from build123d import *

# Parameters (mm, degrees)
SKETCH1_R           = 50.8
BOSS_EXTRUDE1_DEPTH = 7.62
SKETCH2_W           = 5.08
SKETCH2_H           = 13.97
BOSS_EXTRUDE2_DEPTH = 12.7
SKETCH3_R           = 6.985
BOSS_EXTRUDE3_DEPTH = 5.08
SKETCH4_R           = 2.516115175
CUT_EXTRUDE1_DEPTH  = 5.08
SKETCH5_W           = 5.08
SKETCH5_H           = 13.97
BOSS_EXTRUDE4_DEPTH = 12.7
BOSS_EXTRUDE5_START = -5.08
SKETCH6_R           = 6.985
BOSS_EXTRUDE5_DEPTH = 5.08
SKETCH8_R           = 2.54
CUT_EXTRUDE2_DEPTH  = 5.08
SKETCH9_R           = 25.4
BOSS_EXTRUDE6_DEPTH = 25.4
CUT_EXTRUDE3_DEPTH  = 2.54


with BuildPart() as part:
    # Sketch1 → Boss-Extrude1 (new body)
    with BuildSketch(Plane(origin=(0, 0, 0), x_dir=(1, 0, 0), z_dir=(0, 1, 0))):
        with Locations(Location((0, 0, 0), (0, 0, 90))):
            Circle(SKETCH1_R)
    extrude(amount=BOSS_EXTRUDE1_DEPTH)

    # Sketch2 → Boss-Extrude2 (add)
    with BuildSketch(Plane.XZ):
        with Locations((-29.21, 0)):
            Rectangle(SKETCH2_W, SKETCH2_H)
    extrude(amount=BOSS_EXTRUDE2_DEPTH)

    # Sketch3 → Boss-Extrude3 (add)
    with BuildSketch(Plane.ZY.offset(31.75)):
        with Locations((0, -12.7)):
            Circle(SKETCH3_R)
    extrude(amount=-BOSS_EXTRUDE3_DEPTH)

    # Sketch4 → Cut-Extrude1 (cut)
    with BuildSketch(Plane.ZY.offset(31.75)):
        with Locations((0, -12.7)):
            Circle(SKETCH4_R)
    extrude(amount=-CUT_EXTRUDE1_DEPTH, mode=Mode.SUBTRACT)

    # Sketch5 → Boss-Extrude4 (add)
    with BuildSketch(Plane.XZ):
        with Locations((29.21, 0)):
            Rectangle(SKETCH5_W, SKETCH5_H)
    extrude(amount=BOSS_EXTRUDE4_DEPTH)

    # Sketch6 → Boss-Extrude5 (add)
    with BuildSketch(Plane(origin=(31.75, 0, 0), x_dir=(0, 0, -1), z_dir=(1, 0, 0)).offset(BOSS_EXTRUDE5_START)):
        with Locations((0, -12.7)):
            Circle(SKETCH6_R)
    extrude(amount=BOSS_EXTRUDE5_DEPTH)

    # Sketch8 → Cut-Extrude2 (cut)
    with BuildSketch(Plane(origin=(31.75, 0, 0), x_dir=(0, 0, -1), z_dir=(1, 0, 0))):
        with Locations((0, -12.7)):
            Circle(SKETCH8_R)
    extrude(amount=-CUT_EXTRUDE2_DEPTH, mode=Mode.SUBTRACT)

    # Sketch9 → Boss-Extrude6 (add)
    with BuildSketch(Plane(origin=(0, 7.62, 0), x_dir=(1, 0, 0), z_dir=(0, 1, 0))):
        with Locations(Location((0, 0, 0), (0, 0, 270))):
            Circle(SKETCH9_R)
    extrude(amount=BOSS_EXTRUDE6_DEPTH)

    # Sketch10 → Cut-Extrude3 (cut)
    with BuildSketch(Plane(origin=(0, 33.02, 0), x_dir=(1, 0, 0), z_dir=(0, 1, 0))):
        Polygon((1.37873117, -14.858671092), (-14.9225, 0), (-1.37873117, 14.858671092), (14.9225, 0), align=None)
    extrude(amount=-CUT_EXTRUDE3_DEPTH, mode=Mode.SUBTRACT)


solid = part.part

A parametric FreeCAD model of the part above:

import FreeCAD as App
import Part
import Sketcher
from FreeCAD import Vector
Q = App.Units.Quantity


def add_polygon(sketch, points):
    """Adds a closed chain of lines whose ends are joined by coincident constraints."""
    first, n = sketch.GeometryCount, len(points)
    for a, b in zip(points, points[1:] + points[:1]):
        sketch.addGeometry(Part.LineSegment(App.Vector(*a, 0), App.Vector(*b, 0)), False)
    for i in range(n):
        sketch.addConstraint(Sketcher.Constraint("Coincident", first + i, 2, first + (i + 1) % n, 1))

doc = App.newDocument("Part")
body = doc.addObject("PartDesign::Body", "Body")

sketch1 = body.newObject("Sketcher::SketchObject", "Sketch")
sketch1.AttachmentSupport = (doc.getObject("XZ_Plane"), [""])
sketch1.MapMode = "FlatFace"
sketch1.addGeometry(Part.Circle(Vector(0, 0, 0), Vector(0, 0, 1), 51), False)
sketch1.addConstraint(Sketcher.Constraint("Coincident", 0, 3, -1, 1))
sketch1.addConstraint(Sketcher.Constraint("Diameter", 0, Q("4 in")))
pad1 = body.newObject("PartDesign::Pad", "Pad")
pad1.Profile = sketch1
pad1.Length = Q("0.3 in")
pad1.Reversed = True

sketch2 = body.newObject("Sketcher::SketchObject", "Sketch001")
sketch2.AttachmentSupport = (doc.getObject("XZ_Plane"), [""])
sketch2.MapMode = "FlatFace"
add_polygon(sketch2, [(-32, 7), (-32, -7), (-27, -7), (-27, 7)])
sketch2.addConstraint(Sketcher.Constraint("Vertical", 0))
sketch2.addConstraint(Sketcher.Constraint("Horizontal", 1))
sketch2.addConstraint(Sketcher.Constraint("Vertical", 2))
sketch2.addConstraint(Sketcher.Constraint("Horizontal", 3))
sketch2.addConstraint(Sketcher.Constraint("DistanceX", 1, 1, 1, 2, Q("0.2 in")))
sketch2.addConstraint(Sketcher.Constraint("DistanceY", 0, 2, 0, 1, Q("0.55 in")))
sketch2.addConstraint(Sketcher.Constraint("DistanceX", 0, 2, -1, 1, Q("1.25 in")))
sketch2.addConstraint(Sketcher.Constraint("DistanceY", 0, 2, -1, 1, Q("0.275 in")))
pad2 = body.newObject("PartDesign::Pad", "Pad001")
pad2.Profile = sketch2
pad2.Length = Q("0.5 in")

sketch3 = body.newObject("Sketcher::SketchObject", "Sketch002")
sketch3.AttachmentSupport = (doc.getObject("YZ_Plane"), [""])
sketch3.MapMode = "FlatFace"
sketch3.AttachmentOffset = App.Placement(Vector(0, 0, -1.25 * 25.4), App.Rotation())
sketch3.addGeometry(Part.Circle(Vector(-13, 0, 0), Vector(0, 0, 1), 7), False)
sketch3.addConstraint(Sketcher.Constraint("PointOnObject", 0, 3, -1))
sketch3.addConstraint(Sketcher.Constraint("Diameter", 0, Q("0.55 in")))
sketch3.addConstraint(Sketcher.Constraint("DistanceX", 0, 3, -1, 1, Q("0.5 in")))
pad3 = body.newObject("PartDesign::Pad", "Pad002")
pad3.Profile = sketch3
pad3.Length = Q("0.2 in")

sketch4 = body.newObject("Sketcher::SketchObject", "Sketch003")
sketch4.AttachmentSupport = (doc.getObject("YZ_Plane"), [""])
sketch4.MapMode = "FlatFace"
sketch4.AttachmentOffset = App.Placement(Vector(0, 0, -1.25 * 25.4), App.Rotation())
sketch4.addGeometry(Part.Circle(Vector(-12.7, 0, 0), Vector(0, 0, 1), 2.5), False)
sketch4.addConstraint(Sketcher.Constraint("PointOnObject", 0, 3, -1))
sketch4.addConstraint(Sketcher.Constraint("DistanceX", 0, 3, -1, 1, Q("0.5 in")))
sketch4.addConstraint(Sketcher.Constraint("Diameter", 0, Q("5.03223 mm")))
pocket1 = body.newObject("PartDesign::Pocket", "Pocket")
pocket1.Profile = sketch4
pocket1.Length = Q("0.2 in")
pocket1.Reversed = True

sketch5 = body.newObject("Sketcher::SketchObject", "Sketch004")
sketch5.AttachmentSupport = (doc.getObject("XZ_Plane"), [""])
sketch5.MapMode = "FlatFace"
add_polygon(sketch5, [(27, 7), (27, -7), (32, -7), (32, 7)])
sketch5.addConstraint(Sketcher.Constraint("Vertical", 0))
sketch5.addConstraint(Sketcher.Constraint("Horizontal", 1))
sketch5.addConstraint(Sketcher.Constraint("Vertical", 2))
sketch5.addConstraint(Sketcher.Constraint("Horizontal", 3))
sketch5.addConstraint(Sketcher.Constraint("DistanceX", 1, 1, 1, 2, Q("0.2 in")))
sketch5.addConstraint(Sketcher.Constraint("DistanceY", 0, 2, 0, 1, Q("0.55 in")))
sketch5.addConstraint(Sketcher.Constraint("DistanceX", -1, 1, 0, 2, Q("1.05 in")))
sketch5.addConstraint(Sketcher.Constraint("DistanceY", 0, 2, -1, 1, Q("0.275 in")))
pad4 = body.newObject("PartDesign::Pad", "Pad003")
pad4.Profile = sketch5
pad4.Length = Q("0.5 in")

sketch6 = body.newObject("Sketcher::SketchObject", "Sketch005")
sketch6.AttachmentSupport = (doc.getObject("YZ_Plane"), [""])
sketch6.MapMode = "FlatFace"
sketch6.AttachmentOffset = App.Placement(Vector(0, 0, 1.05 * 25.4), App.Rotation())
sketch6.addGeometry(Part.Circle(Vector(-13, 0, 0), Vector(0, 0, 1), 7), False)
sketch6.addConstraint(Sketcher.Constraint("PointOnObject", 0, 3, -1))
sketch6.addConstraint(Sketcher.Constraint("Diameter", 0, Q("0.55 in")))
sketch6.addConstraint(Sketcher.Constraint("DistanceX", 0, 3, -1, 1, Q("0.5 in")))
pad5 = body.newObject("PartDesign::Pad", "Pad004")
pad5.Profile = sketch6
pad5.Length = Q("0.2 in")

sketch7 = body.newObject("Sketcher::SketchObject", "Sketch006")
sketch7.AttachmentSupport = (doc.getObject("YZ_Plane"), [""])
sketch7.MapMode = "FlatFace"
sketch7.AttachmentOffset = App.Placement(Vector(0, 0, 1.25 * 25.4), App.Rotation())
sketch7.addGeometry(Part.Circle(Vector(-12.7, 0, 0), Vector(0, 0, 1), 2.5), False)
sketch7.addConstraint(Sketcher.Constraint("PointOnObject", 0, 3, -1))
sketch7.addConstraint(Sketcher.Constraint("Diameter", 0, Q("0.2 in")))
sketch7.addConstraint(Sketcher.Constraint("DistanceX", 0, 3, -1, 1, Q("0.5 in")))
pocket2 = body.newObject("PartDesign::Pocket", "Pocket001")
pocket2.Profile = sketch7
pocket2.Length = Q("0.2 in")

sketch8 = body.newObject("Sketcher::SketchObject", "Sketch007")
sketch8.AttachmentSupport = (doc.getObject("XZ_Plane"), [""])
sketch8.MapMode = "FlatFace"
sketch8.AttachmentOffset = App.Placement(Vector(0, 0, -0.3 * 25.4), App.Rotation())
sketch8.addGeometry(Part.Circle(Vector(0, 0, 0), Vector(0, 0, 1), 25), False)
sketch8.addConstraint(Sketcher.Constraint("Coincident", 0, 3, -1, 1))
sketch8.addConstraint(Sketcher.Constraint("Diameter", 0, Q("2 in")))
pad6 = body.newObject("PartDesign::Pad", "Pad005")
pad6.Profile = sketch8
pad6.Length = Q("1 in")
pad6.Reversed = True

sketch9 = body.newObject("Sketcher::SketchObject", "Sketch008")
sketch9.AttachmentSupport = (doc.getObject("XZ_Plane"), [""])
sketch9.MapMode = "FlatFace"
sketch9.AttachmentOffset = App.Placement(Vector(0, 0, -1.3 * 25.4), App.Rotation())
add_polygon(sketch9, [(-15, 0), (1, 15), (15, 0), (-1, -15)])
sketch9.addConstraint(Sketcher.Constraint("Symmetric", 0, 2, 2, 2, -1, 1))
sketch9.addConstraint(Sketcher.Constraint("Symmetric", 1, 2, 3, 2, -1, 1))
sketch9.addConstraint(Sketcher.Constraint("PointOnObject", 1, 2, -1))
sketch9.addConstraint(Sketcher.Constraint("Perpendicular", 0, 1))
sketch9.addConstraint(Sketcher.Constraint("DistanceX", 3, 2, 1, 2, Q("1.175 in")))
sketch9.addConstraint(Sketcher.Constraint("Distance", 1, Q("20.105069 mm")))
pocket3 = body.newObject("PartDesign::Pocket", "Pocket002")
pocket3.Profile = sketch9
pocket3.Length = Q("0.1 in")
pocket3.Reversed = True

doc.recompute()
